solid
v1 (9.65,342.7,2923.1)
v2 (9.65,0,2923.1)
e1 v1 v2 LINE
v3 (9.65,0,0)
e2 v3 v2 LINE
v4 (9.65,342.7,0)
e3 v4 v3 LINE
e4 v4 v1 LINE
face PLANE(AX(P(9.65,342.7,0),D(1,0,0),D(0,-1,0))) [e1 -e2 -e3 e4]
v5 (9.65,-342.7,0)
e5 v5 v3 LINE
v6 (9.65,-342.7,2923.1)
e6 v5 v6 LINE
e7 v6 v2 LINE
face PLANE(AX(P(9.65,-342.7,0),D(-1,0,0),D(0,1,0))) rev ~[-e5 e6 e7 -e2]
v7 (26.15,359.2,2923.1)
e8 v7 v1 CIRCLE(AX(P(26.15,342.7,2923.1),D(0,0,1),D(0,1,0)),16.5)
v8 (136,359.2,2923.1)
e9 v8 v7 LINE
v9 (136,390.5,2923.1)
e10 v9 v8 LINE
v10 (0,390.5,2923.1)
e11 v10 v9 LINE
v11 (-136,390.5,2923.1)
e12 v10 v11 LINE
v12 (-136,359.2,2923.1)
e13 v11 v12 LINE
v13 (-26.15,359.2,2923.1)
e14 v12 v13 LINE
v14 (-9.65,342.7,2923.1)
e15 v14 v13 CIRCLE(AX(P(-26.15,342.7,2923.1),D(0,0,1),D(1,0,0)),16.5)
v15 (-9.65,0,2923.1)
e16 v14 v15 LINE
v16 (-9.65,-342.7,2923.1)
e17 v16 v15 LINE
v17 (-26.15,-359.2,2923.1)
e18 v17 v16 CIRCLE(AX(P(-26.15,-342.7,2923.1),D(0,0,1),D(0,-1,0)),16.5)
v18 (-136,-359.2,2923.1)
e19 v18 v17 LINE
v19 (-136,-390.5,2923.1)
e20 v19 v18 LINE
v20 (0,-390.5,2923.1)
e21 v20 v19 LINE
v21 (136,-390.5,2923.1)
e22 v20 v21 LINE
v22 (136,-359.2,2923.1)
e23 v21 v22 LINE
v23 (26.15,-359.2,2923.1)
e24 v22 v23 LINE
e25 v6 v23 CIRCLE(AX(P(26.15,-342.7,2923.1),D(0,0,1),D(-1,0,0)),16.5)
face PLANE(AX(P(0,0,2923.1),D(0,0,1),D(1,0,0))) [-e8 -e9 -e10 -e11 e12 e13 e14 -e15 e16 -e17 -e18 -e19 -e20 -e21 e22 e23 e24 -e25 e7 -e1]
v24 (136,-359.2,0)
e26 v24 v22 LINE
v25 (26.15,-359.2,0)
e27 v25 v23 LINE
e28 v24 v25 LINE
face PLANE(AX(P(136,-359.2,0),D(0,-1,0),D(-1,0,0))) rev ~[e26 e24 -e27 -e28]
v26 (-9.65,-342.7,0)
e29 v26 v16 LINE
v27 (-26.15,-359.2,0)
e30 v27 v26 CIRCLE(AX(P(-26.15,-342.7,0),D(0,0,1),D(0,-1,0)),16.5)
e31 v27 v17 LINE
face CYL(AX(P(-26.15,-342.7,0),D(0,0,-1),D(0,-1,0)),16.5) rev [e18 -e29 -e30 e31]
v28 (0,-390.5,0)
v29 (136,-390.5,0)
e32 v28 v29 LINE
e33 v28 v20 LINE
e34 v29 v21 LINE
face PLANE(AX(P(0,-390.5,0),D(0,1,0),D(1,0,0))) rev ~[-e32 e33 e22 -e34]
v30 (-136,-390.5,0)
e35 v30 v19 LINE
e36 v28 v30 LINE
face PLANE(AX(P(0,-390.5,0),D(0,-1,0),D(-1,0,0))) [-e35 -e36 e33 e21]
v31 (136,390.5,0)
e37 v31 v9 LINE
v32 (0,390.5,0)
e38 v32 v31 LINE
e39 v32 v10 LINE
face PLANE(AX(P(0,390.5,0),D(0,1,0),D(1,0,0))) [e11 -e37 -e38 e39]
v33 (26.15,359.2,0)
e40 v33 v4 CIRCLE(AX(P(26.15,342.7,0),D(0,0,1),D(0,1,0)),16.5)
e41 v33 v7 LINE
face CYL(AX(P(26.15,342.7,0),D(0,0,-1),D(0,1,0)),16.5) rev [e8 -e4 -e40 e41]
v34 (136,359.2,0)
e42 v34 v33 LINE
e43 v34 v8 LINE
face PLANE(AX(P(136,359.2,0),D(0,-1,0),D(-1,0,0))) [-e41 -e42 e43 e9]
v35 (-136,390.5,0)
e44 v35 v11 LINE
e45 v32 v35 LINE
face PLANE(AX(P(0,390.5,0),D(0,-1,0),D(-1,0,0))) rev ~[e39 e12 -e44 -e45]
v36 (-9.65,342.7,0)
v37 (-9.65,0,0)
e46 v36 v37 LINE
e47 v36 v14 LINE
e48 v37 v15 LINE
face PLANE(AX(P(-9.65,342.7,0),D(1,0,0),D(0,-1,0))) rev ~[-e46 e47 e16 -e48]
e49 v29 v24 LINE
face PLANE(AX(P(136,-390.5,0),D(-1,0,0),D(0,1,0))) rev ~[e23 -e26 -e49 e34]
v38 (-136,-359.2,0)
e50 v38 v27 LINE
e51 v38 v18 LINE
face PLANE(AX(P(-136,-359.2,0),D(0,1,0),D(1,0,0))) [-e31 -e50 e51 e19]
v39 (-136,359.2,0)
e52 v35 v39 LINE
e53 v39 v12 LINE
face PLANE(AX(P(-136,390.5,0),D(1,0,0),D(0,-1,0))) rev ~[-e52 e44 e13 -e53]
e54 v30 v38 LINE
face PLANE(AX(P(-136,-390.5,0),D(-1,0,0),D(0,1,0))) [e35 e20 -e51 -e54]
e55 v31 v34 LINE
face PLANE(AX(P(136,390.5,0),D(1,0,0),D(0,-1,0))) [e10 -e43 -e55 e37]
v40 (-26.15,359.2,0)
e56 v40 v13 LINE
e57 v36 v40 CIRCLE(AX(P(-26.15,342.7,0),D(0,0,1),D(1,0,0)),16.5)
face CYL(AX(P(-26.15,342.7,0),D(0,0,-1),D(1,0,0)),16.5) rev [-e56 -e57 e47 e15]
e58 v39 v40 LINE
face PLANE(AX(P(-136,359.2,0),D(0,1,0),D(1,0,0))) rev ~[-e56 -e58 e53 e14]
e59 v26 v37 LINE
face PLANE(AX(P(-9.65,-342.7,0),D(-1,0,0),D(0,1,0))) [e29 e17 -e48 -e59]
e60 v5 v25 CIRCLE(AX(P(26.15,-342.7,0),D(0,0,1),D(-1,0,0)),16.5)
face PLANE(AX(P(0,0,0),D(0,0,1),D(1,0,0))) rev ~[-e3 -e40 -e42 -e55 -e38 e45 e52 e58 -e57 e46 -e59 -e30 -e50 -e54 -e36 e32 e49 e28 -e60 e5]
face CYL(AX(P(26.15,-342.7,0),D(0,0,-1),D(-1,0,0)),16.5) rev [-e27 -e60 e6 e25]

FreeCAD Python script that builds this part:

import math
import FreeCAD as App
import Part
import Sketcher

V = App.Vector

doc = App.newDocument("Part")
body = doc.addObject("PartDesign::Body", "Body")

# Sketch on XY plane
sketch1 = doc.addObject("Sketcher::SketchObject", "Sketch")
body.addObject(sketch1)
sketch1.AttachmentSupport = (doc.XY_Plane, [""])
sketch1.MapMode = "FlatFace"
sketch1.addGeometry([
    Part.LineSegment(V(-136, -359, 0), V(-136, -390, 0)),  # 0
    Part.LineSegment(V(-136, -390, 0), V(136, -390, 0)),  # 1
    Part.LineSegment(V(136, -390, 0), V(136, -359, 0)),  # 2
    Part.LineSegment(V(136, -359, 0), V(26, -359, 0)),  # 3
    Part.ArcOfCircle(Part.Circle(V(26, -343, 0), V(0, 0, 1), 16), math.radians(180), math.radians(270)),  # 4
    Part.LineSegment(V(10, -343, 0), V(10, 343, 0)),  # 5
    Part.ArcOfCircle(Part.Circle(V(26, 343, 0), V(0, 0, 1), 16), math.radians(90), math.radians(180)),  # 6
    Part.LineSegment(V(26, 359, 0), V(136, 359, 0)),  # 7
    Part.LineSegment(V(136, 359, 0), V(136, 390, 0)),  # 8
    Part.LineSegment(V(136, 390, 0), V(-136, 390, 0)),  # 9
    Part.LineSegment(V(-136, 390, 0), V(-136, 359, 0)),  # 10
    Part.LineSegment(V(-136, 359, 0), V(-26, 359, 0)),  # 11
    Part.ArcOfCircle(Part.Circle(V(-26, 343, 0), V(0, 0, 1), 16), math.radians(0), math.radians(90)),  # 12
    Part.LineSegment(V(-10, 343, 0), V(-10, -343, 0)),  # 13
    Part.ArcOfCircle(Part.Circle(V(-26, -343, 0), V(0, 0, 1), 16), math.radians(-90), math.radians(0)),  # 14
    Part.LineSegment(V(-26, -359, 0), V(-136, -359, 0)),  # 15
], False)
sketch1.addConstraint([
    Sketcher.Constraint("Coincident", 0, 2, 1, 1),
    Sketcher.Constraint("Coincident", 1, 2, 2, 1),
    Sketcher.Constraint("Coincident", 2, 2, 3, 1),
    Sketcher.Constraint("Tangent", 3, 2, 4, 2),
    Sketcher.Constraint("Tangent", 4, 1, 5, 1),
    Sketcher.Constraint("Tangent", 5, 2, 6, 2),
    Sketcher.Constraint("Tangent", 6, 1, 7, 1),
    Sketcher.Constraint("Coincident", 7, 2, 8, 1),
    Sketcher.Constraint("Coincident", 8, 2, 9, 1),
    Sketcher.Constraint("Coincident", 9, 2, 10, 1),
    Sketcher.Constraint("Coincident", 10, 2, 11, 1),
    Sketcher.Constraint("Tangent", 11, 2, 12, 2),
    Sketcher.Constraint("Tangent", 12, 1, 13, 1),
    Sketcher.Constraint("Tangent", 13, 2, 14, 2),
    Sketcher.Constraint("Tangent", 14, 1, 15, 1),
    Sketcher.Constraint("Coincident", 15, 2, 0, 1),
    Sketcher.Constraint("Vertical", 0),
    Sketcher.Constraint("Horizontal", 1),
    Sketcher.Constraint("Vertical", 2),
    Sketcher.Constraint("Horizontal", 3),
    Sketcher.Constraint("Vertical", 5),
    Sketcher.Constraint("Horizontal", 7),
    Sketcher.Constraint("Vertical", 8),
    Sketcher.Constraint("Horizontal", 9),
    Sketcher.Constraint("Vertical", 10),
    Sketcher.Constraint("Horizontal", 11),
    Sketcher.Constraint("Vertical", 13),
    Sketcher.Constraint("Horizontal", 15),
    Sketcher.Constraint("Equal", 4, 6),
    Sketcher.Constraint("Equal", 6, 12),
    Sketcher.Constraint("Equal", 12, 14),
    Sketcher.Constraint("Symmetric", 4, 3, 12, 3, -1, 1),
    Sketcher.Constraint("Symmetric", 0, 2, 8, 2, -1, 1),
    Sketcher.Constraint("Symmetric", 7, 2, 10, 2, -2),
    Sketcher.Constraint("Symmetric", 2, 2, 15, 2, -2),
    Sketcher.Constraint("Radius", 4, 16.5),
    Sketcher.Constraint("DistanceY", 0, 2, 0, 1, 31.3),
    Sketcher.Constraint("DistanceX", 0, 2, -1, 1, 136.0),
    Sketcher.Constraint("DistanceY", 0, 2, -1, 1, 390.5),
    Sketcher.Constraint("DistanceX", -1, 1, 4, 1, 9.65),
])
pad1 = doc.addObject("PartDesign::Pad", "Pad")
body.addObject(pad1)
pad1.Profile = sketch1
pad1.Length = 2923.1

doc.recompute()
